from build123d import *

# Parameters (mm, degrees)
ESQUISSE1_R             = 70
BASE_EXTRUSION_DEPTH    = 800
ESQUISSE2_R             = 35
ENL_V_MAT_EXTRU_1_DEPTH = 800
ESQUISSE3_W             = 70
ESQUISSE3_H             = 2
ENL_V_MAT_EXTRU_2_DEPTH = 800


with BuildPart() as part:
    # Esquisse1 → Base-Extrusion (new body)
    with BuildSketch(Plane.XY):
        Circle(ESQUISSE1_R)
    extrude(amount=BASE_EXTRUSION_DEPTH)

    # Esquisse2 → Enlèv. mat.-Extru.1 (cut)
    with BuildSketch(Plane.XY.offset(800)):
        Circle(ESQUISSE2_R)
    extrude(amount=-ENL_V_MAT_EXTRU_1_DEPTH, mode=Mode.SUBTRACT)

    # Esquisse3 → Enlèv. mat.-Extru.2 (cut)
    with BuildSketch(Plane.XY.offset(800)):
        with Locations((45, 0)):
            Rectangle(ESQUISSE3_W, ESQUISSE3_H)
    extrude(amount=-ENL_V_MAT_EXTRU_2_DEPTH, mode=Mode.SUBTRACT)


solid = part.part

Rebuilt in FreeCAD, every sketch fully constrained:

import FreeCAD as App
import Part
import Sketcher
from FreeCAD import Vector

doc = App.newDocument("Part")
body = doc.addObject("PartDesign::Body", "Body")

sketch1 = body.newObject("Sketcher::SketchObject", "Sketch")
sketch1.AttachmentSupport = (doc.getObject("XY_Plane"), [""])
sketch1.MapMode = "FlatFace"
sketch1.addGeometry(Part.Circle(Vector(0, 0, 0), Vector(0, 0, 1), 70), False)
sketch1.addConstraint(Sketcher.Constraint("Coincident", 0, 3, -1, 1))
sketch1.addConstraint(Sketcher.Constraint("Diameter", 0, 140.0))
pad1 = body.newObject("PartDesign::Pad", "Pad")
pad1.Profile = sketch1
pad1.Length = 800

sketch2 = body.newObject("Sketcher::SketchObject", "Sketch001")
sketch2.AttachmentSupport = (doc.getObject("XY_Plane"), [""])
sketch2.MapMode = "FlatFace"
sketch2.AttachmentOffset = App.Placement(Vector(0, 0, 800), App.Rotation())
sketch2.addGeometry(Part.Circle(Vector(0, 0, 0), Vector(0, 0, 1), 35), False)
sketch2.addConstraint(Sketcher.Constraint("Coincident", 0, 3, -1, 1))
sketch2.addConstraint(Sketcher.Constraint("Diameter", 0, 70.0))
pocket1 = body.newObject("PartDesign::Pocket", "Pocket")
pocket1.Profile = sketch2
pocket1.Length = 800

sketch3 = body.newObject("Sketcher::SketchObject", "Sketch002")
sketch3.AttachmentSupport = (doc.getObject("XY_Plane"), [""])
sketch3.MapMode = "FlatFace"
sketch3.AttachmentOffset = App.Placement(Vector(0, 0, 800), App.Rotation())
sketch3.addGeometry(Part.LineSegment(Vector(10, 1, 0), Vector(10, -1, 0)), False)
sketch3.addGeometry(Part.LineSegment(Vector(10, -1, 0), Vector(80, -1, 0)), False)
sketch3.addGeometry(Part.LineSegment(Vector(80, -1, 0), Vector(80, 1, 0)), False)
sketch3.addGeometry(Part.LineSegment(Vector(80, 1, 0), Vector(10, 1, 0)), False)
sketch3.addConstraint(Sketcher.Constraint("Coincident", 0, 2, 1, 1))
sketch3.addConstraint(Sketcher.Constraint("Coincident", 1, 2, 2, 1))
sketch3.addConstraint(Sketcher.Constraint("Coincident", 2, 2, 3, 1))
sketch3.addConstraint(Sketcher.Constraint("Coincident", 3, 2, 0, 1))
sketch3.addConstraint(Sketcher.Constraint("Vertical", 0))
sketch3.addConstraint(Sketcher.Constraint("Horizontal", 1))
sketch3.addConstraint(Sketcher.Constraint("Vertical", 2))
sketch3.addConstraint(Sketcher.Constraint("Horizontal", 3))
sketch3.addConstraint(Sketcher.Constraint("DistanceX", 1, 1, 1, 2, 70.0))
sketch3.addConstraint(Sketcher.Constraint("DistanceY", 0, 2, 0, 1, 2.0))
sketch3.addConstraint(Sketcher.Constraint("DistanceX", -1, 1, 0, 2, 10.0))
sketch3.addConstraint(Sketcher.Constraint("DistanceY", 0, 2, -1, 1, 1.0))
pocket2 = body.newObject("PartDesign::Pocket", "Pocket001")
pocket2.Profile = sketch3
pocket2.Length = 800

doc.recompute()
